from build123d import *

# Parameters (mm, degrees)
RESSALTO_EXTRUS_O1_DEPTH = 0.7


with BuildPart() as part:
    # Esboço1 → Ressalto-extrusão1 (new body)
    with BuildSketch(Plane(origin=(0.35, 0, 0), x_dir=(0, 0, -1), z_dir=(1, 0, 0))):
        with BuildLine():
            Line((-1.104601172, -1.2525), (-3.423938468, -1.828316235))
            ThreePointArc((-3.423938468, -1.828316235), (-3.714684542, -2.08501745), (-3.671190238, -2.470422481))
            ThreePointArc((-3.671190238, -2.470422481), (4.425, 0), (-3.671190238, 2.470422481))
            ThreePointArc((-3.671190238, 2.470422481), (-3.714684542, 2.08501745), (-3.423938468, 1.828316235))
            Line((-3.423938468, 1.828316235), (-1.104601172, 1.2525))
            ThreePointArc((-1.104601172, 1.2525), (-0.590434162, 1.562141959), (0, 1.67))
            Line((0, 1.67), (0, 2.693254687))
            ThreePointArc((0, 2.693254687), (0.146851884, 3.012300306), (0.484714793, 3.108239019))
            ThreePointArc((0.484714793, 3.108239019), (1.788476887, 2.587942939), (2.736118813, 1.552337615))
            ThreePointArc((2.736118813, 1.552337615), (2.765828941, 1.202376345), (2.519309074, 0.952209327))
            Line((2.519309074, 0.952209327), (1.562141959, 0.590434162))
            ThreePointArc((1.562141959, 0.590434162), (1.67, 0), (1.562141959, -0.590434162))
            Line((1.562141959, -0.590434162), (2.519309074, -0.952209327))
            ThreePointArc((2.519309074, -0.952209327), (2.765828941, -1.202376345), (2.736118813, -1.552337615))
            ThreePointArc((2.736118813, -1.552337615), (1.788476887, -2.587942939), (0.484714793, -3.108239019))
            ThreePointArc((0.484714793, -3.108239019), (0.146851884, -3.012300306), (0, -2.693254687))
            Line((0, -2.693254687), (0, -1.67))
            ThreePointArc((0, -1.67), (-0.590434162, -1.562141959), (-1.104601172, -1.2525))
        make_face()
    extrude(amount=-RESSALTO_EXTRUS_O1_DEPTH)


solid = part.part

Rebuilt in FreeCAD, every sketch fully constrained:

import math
import FreeCAD as App
import Part
import Sketcher

V = App.Vector

doc = App.newDocument("Part")
params = doc.addObject("Spreadsheet::Sheet", "Params")
for row, (alias, value) in enumerate([
    ("sketch1_radius", "0.42 mm"),
    ("sketch1_radius2", "1.67 mm"),
    ("pad1_length", "0.7 mm"),
], start=1):
    params.set(f"A{row}", alias)
    params.set(f"B{row}", "=" + value)
    params.setAlias(f"B{row}", alias)

body = doc.addObject("PartDesign::Body", "Body")

sketch1 = body.newObject("Sketcher::SketchObject", "Sketch")
sketch1.AttachmentSupport = (doc.getObject("YZ_Plane"), [""])
sketch1.MapMode = "FlatFace"
sketch1.AttachmentOffset = App.Placement(V(0, 0, 0.35), App.Rotation())
sketch1.addGeometry([
    Part.LineSegment(V(-1.25, 1.1, 0), V(-1.83, 3.42, 0)),
    Part.ArcOfCircle(Part.Circle(V(-2.24, 3.32, 0), V(0, 0, 1), 0.42), math.radians(14), math.radians(124)),
    Part.ArcOfCircle(Part.Circle(V(0, 0, 0), V(0, 0, 1), 4.42), math.radians(124), math.radians(416)),
    Part.ArcOfCircle(Part.Circle(V(2.24, 3.32, 0), V(0, 0, 1), 0.42), math.radians(56), math.radians(166)),
    Part.LineSegment(V(1.83, 3.42, 0), V(1.25, 1.1, 0)),
    Part.ArcOfCircle(Part.Circle(V(0, 0, 0), V(0, 0, 1), 1.67), math.radians(0), math.radians(41)),
    Part.LineSegment(V(1.67, 0, 0), V(2.69, 0, 0)),
    Part.ArcOfCircle(Part.Circle(V(2.69, -0.42, 0), V(0, 0, 1), 0.42), math.radians(-9), math.radians(90)),
    Part.ArcOfCircle(Part.Circle(V(0, 0, 0), V(0, 0, 1), 3.15), math.radians(-60), math.radians(-9)),
    Part.ArcOfCircle(Part.Circle(V(1.35, -2.37, 0), V(0, 0, 1), 0.42), math.radians(-159), math.radians(-60)),
    Part.LineSegment(V(0.95, -2.52, 0), V(0.59, -1.56, 0)),
    Part.ArcOfCircle(Part.Circle(V(0, 0, 0), V(0, 0, 1), 1.67), math.radians(-111), math.radians(-69)),
    Part.LineSegment(V(-0.59, -1.56, 0), V(-0.95, -2.52, 0)),
    Part.ArcOfCircle(Part.Circle(V(-1.35, -2.37, 0), V(0, 0, 1), 0.42), math.radians(-120), math.radians(-21)),
    Part.ArcOfCircle(Part.Circle(V(0, 0, 0), V(0, 0, 1), 3.15), math.radians(-171), math.radians(-120)),
    Part.ArcOfCircle(Part.Circle(V(-2.69, -0.42, 0), V(0, 0, 1), 0.42), math.radians(90), math.radians(189)),
    Part.LineSegment(V(-2.69, 0, 0), V(-1.67, 0, 0)),
    Part.ArcOfCircle(Part.Circle(V(0, 0, 0), V(0, 0, 1), 1.67), math.radians(139), math.radians(180)),
], False)
sketch1.addConstraint([
    Sketcher.Constraint("Tangent", 0, 2, 1, 1),
    Sketcher.Constraint("Tangent", 1, 2, 2, 1),
    Sketcher.Constraint("Tangent", 2, 2, 3, 1),
    Sketcher.Constraint("Tangent", 3, 2, 4, 1),
    Sketcher.Constraint("Coincident", 4, 2, 5, 2),
    Sketcher.Constraint("Coincident", 5, 1, 6, 1),
    Sketcher.Constraint("Tangent", 6, 2, 7, 2),
    Sketcher.Constraint("Tangent", 7, 1, 8, 2),
    Sketcher.Constraint("Tangent", 8, 1, 9, 2),
    Sketcher.Constraint("Tangent", 9, 1, 10, 1),
    Sketcher.Constraint("Coincident", 10, 2, 11, 2),
    Sketcher.Constraint("Coincident", 11, 1, 12, 1),
    Sketcher.Constraint("Tangent", 12, 2, 13, 2),
    Sketcher.Constraint("Tangent", 13, 1, 14, 2),
    Sketcher.Constraint("Tangent", 14, 1, 15, 2),
    Sketcher.Constraint("Tangent", 15, 1, 16, 1),
    Sketcher.Constraint("Coincident", 16, 2, 17, 2),
    Sketcher.Constraint("Coincident", 17, 1, 0, 1),
    Sketcher.Constraint("Horizontal", 6),
    Sketcher.Constraint("Horizontal", 16),
    Sketcher.Constraint("Coincident", 2, 3, -1, 1),
    Sketcher.Constraint("Coincident", 5, 3, -1, 1),
    Sketcher.Constraint("Coincident", 8, 3, -1, 1),
    Sketcher.Constraint("Coincident", 11, 3, -1, 1),
    Sketcher.Constraint("Coincident", 14, 3, -1, 1),
    Sketcher.Constraint("Coincident", 17, 3, -1, 1),
    Sketcher.Constraint("Equal", 1, 3),
    Sketcher.Constraint("Equal", 3, 7),
    Sketcher.Constraint("Equal", 7, 9),
    Sketcher.Constraint("Equal", 5, 11),
    Sketcher.Constraint("Equal", 9, 13),
    Sketcher.Constraint("Equal", 8, 14),
    Sketcher.Constraint("Equal", 13, 15),
    Sketcher.Constraint("Equal", 11, 17),
    Sketcher.Constraint("Symmetric", 6, 2, 15, 1, -1, 1),
    Sketcher.Constraint("Symmetric", 0, 2, 3, 2, -2),
    Sketcher.Constraint("Symmetric", 9, 1, 12, 2, -2),
    Sketcher.Constraint("Radius", 1, 0.42),
    Sketcher.Constraint("Radius", 5, 1.67),
    Sketcher.Constraint("Radius", 2, 4.425),
    Sketcher.Constraint("Radius", 8, 3.145806),
    Sketcher.Constraint("DistanceX", -1, 1, 4, 2, 1.2525),
    Sketcher.Constraint("DistanceY", 1, 3, 0, 2, 0.1012),
    Sketcher.Constraint("DistanceY", 9, 3, 7, 1, 1.886102),
    Sketcher.Constraint("DistanceX", -1, 1, 9, 1, 0.952209),
])
sketch1.setExpression("Constraints[37]", "Params.sketch1_radius")
sketch1.setExpression("Constraints[38]", "Params.sketch1_radius2")
pad1 = body.newObject("PartDesign::Pad", "Pad")
pad1.Profile = sketch1
pad1.setExpression("Length", "Params.pad1_length")
pad1.Reversed = True

doc.recompute()
